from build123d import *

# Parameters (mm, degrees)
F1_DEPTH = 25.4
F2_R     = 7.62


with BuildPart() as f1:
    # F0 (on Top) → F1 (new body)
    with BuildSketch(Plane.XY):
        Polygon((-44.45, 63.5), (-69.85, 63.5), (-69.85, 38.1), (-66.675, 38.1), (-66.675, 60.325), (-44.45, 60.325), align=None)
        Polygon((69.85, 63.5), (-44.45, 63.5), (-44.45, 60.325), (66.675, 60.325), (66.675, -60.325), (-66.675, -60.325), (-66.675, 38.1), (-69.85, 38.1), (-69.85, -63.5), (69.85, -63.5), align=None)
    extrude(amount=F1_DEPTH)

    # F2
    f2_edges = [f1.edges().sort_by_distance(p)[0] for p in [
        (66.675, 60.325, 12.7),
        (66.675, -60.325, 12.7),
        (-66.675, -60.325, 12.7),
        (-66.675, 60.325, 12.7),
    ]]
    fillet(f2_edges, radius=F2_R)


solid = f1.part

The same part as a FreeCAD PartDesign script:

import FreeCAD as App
import Part
import Sketcher
Q = App.Units.Quantity


def edges_at(feature, points):
    """Names of the edges that pass closest to the given points."""
    edges = feature.Shape.Edges
    near = lambda p: min(range(len(edges)), key=lambda i: edges[i].distToShape(Part.Vertex(*p))[0])
    return sorted({f"Edge{near(p) + 1}" for p in points})


def add_polygon(sketch, points):
    """Adds a closed chain of lines whose ends are joined by coincident constraints."""
    first, n = sketch.GeometryCount, len(points)
    for a, b in zip(points, points[1:] + points[:1]):
        sketch.addGeometry(Part.LineSegment(App.Vector(*a, 0), App.Vector(*b, 0)), False)
    for i in range(n):
        sketch.addConstraint(Sketcher.Constraint("Coincident", first + i, 2, first + (i + 1) % n, 1))

doc = App.newDocument("Part")
body = doc.addObject("PartDesign::Body", "Body")

# Sketch on XY plane
sketch1 = doc.addObject("Sketcher::SketchObject", "Sketch")
body.addObject(sketch1)
sketch1.AttachmentSupport = (doc.XY_Plane, [""])
sketch1.MapMode = "FlatFace"
add_polygon(sketch1, [(-70, 64), (-70, -64), (70, -64), (70, 64)])  # lines 0-3
add_polygon(sketch1, [(-67, 60), (67, 60), (67, -60), (-67, -60)])  # lines 4-7
sketch1.addConstraint([
    Sketcher.Constraint("Vertical", 0),
    Sketcher.Constraint("Horizontal", 1),
    Sketcher.Constraint("Vertical", 2),
    Sketcher.Constraint("Horizontal", 3),
    Sketcher.Constraint("Horizontal", 4),
    Sketcher.Constraint("Vertical", 5),
    Sketcher.Constraint("Horizontal", 6),
    Sketcher.Constraint("Vertical", 7),
    Sketcher.Constraint("Symmetric", 0, 2, 2, 2, -1, 1),
    Sketcher.Constraint("Symmetric", 4, 2, 6, 2, -1, 1),
    Sketcher.Constraint("DistanceY", 0, 2, 0, 1, Q("5 in")),
    Sketcher.Constraint("DistanceX", 1, 1, 1, 2, Q("5.5 in")),
    Sketcher.Constraint("DistanceX", 4, 1, 4, 2, Q("5.25 in")),
    Sketcher.Constraint("DistanceY", 5, 2, 5, 1, Q("4.75 in")),
])
pad1 = doc.addObject("PartDesign::Pad", "Pad")
body.addObject(pad1)
pad1.Profile = sketch1
pad1.Length = Q("1 in")
doc.recompute()

fillet = doc.addObject("PartDesign::Fillet", "Fillet")
body.addObject(fillet)
fillet.Base = (pad1, edges_at(pad1, [
    (66.675, 60.325, 12.7),
    (66.675, -60.325, 12.7),
    (-66.675, -60.325, 12.7),
    (-66.675, 60.325, 12.7),
]))
fillet.Radius = Q("0.3 in")

doc.recompute()
